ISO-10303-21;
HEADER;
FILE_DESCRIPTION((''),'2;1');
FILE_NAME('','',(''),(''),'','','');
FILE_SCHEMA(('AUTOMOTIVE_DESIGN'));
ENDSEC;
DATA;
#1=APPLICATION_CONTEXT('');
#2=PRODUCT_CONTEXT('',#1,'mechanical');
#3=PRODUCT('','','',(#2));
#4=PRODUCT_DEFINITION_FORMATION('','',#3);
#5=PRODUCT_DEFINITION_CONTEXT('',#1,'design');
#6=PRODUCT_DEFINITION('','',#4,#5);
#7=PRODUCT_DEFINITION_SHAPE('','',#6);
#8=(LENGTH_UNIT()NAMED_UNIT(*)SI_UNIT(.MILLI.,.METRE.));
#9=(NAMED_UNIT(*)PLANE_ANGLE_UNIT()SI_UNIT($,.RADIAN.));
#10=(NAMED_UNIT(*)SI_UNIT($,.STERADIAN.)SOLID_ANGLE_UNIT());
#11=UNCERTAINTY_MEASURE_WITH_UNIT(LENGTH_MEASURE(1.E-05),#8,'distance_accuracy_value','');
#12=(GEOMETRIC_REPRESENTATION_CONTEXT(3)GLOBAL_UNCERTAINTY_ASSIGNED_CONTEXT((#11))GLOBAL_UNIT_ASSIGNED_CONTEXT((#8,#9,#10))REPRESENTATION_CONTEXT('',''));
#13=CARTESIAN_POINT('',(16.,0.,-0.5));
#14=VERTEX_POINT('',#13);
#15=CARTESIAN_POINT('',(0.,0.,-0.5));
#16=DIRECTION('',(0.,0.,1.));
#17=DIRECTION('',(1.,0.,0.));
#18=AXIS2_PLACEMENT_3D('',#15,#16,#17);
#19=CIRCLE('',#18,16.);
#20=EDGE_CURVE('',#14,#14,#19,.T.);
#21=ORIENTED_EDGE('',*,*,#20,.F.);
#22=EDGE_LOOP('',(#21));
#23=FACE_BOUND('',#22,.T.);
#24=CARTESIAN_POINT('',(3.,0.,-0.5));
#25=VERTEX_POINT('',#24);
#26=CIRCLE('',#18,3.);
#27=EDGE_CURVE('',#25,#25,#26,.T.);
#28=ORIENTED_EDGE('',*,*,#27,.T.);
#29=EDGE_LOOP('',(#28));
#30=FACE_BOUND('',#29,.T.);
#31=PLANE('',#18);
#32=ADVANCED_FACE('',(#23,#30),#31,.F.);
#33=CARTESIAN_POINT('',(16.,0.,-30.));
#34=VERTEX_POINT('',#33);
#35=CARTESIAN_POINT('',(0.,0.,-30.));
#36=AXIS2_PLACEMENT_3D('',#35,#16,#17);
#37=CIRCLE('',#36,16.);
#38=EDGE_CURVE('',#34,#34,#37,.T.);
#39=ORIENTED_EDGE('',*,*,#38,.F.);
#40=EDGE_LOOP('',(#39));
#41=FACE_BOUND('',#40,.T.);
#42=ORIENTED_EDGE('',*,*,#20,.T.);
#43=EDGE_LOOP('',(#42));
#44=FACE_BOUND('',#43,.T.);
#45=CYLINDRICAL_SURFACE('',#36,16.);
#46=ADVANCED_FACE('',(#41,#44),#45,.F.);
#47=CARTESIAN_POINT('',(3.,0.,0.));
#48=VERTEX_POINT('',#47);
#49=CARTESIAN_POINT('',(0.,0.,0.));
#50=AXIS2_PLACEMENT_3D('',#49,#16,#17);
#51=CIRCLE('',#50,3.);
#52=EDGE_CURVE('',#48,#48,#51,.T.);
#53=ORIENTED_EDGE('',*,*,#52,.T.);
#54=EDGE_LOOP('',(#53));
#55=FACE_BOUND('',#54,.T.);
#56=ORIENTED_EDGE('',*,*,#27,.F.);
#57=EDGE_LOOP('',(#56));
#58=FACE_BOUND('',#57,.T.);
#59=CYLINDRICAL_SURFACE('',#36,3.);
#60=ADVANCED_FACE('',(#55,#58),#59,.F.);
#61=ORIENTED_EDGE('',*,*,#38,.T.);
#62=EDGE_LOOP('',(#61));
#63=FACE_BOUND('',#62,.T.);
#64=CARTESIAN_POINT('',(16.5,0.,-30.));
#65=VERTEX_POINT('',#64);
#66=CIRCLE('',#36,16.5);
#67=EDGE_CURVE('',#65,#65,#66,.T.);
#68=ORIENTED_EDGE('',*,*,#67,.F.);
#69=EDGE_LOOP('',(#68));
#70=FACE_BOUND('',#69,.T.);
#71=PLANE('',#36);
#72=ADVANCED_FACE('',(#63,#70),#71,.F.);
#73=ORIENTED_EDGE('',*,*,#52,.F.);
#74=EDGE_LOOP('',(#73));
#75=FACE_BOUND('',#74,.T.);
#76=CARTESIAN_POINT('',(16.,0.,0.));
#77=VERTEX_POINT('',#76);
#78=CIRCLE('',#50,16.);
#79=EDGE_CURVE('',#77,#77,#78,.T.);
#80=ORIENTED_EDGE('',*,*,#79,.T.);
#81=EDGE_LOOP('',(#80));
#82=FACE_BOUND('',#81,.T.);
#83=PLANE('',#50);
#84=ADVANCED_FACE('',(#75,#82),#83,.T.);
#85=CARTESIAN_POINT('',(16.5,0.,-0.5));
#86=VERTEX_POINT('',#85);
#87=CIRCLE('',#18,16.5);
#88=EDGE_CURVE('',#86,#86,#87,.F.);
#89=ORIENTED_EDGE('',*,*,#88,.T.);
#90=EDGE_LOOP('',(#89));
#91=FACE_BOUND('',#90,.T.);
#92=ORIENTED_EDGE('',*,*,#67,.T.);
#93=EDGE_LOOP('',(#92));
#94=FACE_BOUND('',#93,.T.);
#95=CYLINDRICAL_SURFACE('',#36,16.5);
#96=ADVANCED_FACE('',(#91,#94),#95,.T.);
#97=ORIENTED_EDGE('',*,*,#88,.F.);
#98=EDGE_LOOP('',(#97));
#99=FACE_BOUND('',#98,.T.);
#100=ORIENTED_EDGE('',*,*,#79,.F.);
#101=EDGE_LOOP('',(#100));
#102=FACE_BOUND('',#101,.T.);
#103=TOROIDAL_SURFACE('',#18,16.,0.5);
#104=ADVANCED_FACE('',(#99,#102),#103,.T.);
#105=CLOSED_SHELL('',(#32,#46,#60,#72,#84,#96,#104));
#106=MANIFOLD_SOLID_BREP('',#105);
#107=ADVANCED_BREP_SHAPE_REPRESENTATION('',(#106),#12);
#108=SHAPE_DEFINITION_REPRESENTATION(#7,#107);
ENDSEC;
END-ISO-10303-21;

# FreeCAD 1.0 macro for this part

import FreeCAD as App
import Part
import Sketcher
from FreeCAD import Vector
Q = App.Units.Quantity


def edges_at(feature, points):
    """Names of the edges that pass closest to the given points."""
    edges = feature.Shape.Edges
    near = lambda p: min(range(len(edges)), key=lambda i: edges[i].distToShape(Part.Vertex(*p))[0])
    return sorted({f"Edge{near(p) + 1}" for p in points})


def faces_at(feature, points):
    """Names of the faces that lie closest to the given points."""
    faces = feature.Shape.Faces
    near = lambda p: min(range(len(faces)), key=lambda i: faces[i].distToShape(Part.Vertex(*p))[0])
    return sorted({f"Face{near(p) + 1}" for p in points})

doc = App.newDocument("Part")
params = doc.addObject("Spreadsheet::Sheet", "Params")
for row, (alias, value) in enumerate([
    ("sketch1_diameter", "33 mm"),
    ("pad1_length", "30 mm"),
    ("thickness_wall", "0.5 mm"),
    ("sketch2_diameter", "6 mm"),
    ("fillet_radius", "0.5 mm"),
], start=1):
    params.set(f"A{row}", alias)
    params.set(f"B{row}", "=" + value)
    params.setAlias(f"B{row}", alias)

body = doc.addObject("PartDesign::Body", "Body")

sketch1 = doc.addObject("Sketcher::SketchObject", "Sketch")
body.addObject(sketch1)
sketch1.AttachmentSupport = (doc.XY_Plane, [""])
sketch1.MapMode = "FlatFace"
sketch1.addGeometry(Part.Circle(Vector(0, 0, 0), Vector(0, 0, 1), 16), False)
sketch1.addConstraint([
    Sketcher.Constraint("Coincident", 0, 3, -1, 1),
    Sketcher.Constraint("Diameter", 0, Q("33 mm")),
])
sketch1.setExpression("Constraints[1]", "Params.sketch1_diameter")
pad1 = doc.addObject("PartDesign::Pad", "Pad")
body.addObject(pad1)
pad1.Profile = sketch1
pad1.setExpression("Length", "Params.pad1_length")
pad1.Reversed = True
doc.recompute()

thickness = doc.addObject("PartDesign::Thickness", "Thickness")
body.addObject(thickness)
thickness.Base = (pad1, faces_at(pad1, [(0, 0, -30)]))
thickness.setExpression("Value", "Params.thickness_wall")
thickness.Reversed = True
thickness.Join = "Intersection"

sketch2 = doc.addObject("Sketcher::SketchObject", "Sketch001")
body.addObject(sketch2)
sketch2.AttachmentSupport = (doc.XY_Plane, [""])
sketch2.MapMode = "FlatFace"
sketch2.addGeometry(Part.Circle(Vector(0, 0, 0), Vector(0, 0, 1), 3), False)
sketch2.addConstraint([
    Sketcher.Constraint("Coincident", 0, 3, -1, 1),
    Sketcher.Constraint("Diameter", 0, Q("6 mm")),
])
sketch2.setExpression("Constraints[1]", "Params.sketch2_diameter")
pocket1 = doc.addObject("PartDesign::Pocket", "Pocket")
body.addObject(pocket1)
pocket1.Profile = sketch2
pocket1.Type = "ThroughAll"
doc.recompute()

fillet = doc.addObject("PartDesign::Fillet", "Fillet")
body.addObject(fillet)
fillet.Base = (pocket1, edges_at(pocket1, [(-16.5, 0, 0)]))
fillet.setExpression("Radius", "Params.fillet_radius")

doc.recompute()
